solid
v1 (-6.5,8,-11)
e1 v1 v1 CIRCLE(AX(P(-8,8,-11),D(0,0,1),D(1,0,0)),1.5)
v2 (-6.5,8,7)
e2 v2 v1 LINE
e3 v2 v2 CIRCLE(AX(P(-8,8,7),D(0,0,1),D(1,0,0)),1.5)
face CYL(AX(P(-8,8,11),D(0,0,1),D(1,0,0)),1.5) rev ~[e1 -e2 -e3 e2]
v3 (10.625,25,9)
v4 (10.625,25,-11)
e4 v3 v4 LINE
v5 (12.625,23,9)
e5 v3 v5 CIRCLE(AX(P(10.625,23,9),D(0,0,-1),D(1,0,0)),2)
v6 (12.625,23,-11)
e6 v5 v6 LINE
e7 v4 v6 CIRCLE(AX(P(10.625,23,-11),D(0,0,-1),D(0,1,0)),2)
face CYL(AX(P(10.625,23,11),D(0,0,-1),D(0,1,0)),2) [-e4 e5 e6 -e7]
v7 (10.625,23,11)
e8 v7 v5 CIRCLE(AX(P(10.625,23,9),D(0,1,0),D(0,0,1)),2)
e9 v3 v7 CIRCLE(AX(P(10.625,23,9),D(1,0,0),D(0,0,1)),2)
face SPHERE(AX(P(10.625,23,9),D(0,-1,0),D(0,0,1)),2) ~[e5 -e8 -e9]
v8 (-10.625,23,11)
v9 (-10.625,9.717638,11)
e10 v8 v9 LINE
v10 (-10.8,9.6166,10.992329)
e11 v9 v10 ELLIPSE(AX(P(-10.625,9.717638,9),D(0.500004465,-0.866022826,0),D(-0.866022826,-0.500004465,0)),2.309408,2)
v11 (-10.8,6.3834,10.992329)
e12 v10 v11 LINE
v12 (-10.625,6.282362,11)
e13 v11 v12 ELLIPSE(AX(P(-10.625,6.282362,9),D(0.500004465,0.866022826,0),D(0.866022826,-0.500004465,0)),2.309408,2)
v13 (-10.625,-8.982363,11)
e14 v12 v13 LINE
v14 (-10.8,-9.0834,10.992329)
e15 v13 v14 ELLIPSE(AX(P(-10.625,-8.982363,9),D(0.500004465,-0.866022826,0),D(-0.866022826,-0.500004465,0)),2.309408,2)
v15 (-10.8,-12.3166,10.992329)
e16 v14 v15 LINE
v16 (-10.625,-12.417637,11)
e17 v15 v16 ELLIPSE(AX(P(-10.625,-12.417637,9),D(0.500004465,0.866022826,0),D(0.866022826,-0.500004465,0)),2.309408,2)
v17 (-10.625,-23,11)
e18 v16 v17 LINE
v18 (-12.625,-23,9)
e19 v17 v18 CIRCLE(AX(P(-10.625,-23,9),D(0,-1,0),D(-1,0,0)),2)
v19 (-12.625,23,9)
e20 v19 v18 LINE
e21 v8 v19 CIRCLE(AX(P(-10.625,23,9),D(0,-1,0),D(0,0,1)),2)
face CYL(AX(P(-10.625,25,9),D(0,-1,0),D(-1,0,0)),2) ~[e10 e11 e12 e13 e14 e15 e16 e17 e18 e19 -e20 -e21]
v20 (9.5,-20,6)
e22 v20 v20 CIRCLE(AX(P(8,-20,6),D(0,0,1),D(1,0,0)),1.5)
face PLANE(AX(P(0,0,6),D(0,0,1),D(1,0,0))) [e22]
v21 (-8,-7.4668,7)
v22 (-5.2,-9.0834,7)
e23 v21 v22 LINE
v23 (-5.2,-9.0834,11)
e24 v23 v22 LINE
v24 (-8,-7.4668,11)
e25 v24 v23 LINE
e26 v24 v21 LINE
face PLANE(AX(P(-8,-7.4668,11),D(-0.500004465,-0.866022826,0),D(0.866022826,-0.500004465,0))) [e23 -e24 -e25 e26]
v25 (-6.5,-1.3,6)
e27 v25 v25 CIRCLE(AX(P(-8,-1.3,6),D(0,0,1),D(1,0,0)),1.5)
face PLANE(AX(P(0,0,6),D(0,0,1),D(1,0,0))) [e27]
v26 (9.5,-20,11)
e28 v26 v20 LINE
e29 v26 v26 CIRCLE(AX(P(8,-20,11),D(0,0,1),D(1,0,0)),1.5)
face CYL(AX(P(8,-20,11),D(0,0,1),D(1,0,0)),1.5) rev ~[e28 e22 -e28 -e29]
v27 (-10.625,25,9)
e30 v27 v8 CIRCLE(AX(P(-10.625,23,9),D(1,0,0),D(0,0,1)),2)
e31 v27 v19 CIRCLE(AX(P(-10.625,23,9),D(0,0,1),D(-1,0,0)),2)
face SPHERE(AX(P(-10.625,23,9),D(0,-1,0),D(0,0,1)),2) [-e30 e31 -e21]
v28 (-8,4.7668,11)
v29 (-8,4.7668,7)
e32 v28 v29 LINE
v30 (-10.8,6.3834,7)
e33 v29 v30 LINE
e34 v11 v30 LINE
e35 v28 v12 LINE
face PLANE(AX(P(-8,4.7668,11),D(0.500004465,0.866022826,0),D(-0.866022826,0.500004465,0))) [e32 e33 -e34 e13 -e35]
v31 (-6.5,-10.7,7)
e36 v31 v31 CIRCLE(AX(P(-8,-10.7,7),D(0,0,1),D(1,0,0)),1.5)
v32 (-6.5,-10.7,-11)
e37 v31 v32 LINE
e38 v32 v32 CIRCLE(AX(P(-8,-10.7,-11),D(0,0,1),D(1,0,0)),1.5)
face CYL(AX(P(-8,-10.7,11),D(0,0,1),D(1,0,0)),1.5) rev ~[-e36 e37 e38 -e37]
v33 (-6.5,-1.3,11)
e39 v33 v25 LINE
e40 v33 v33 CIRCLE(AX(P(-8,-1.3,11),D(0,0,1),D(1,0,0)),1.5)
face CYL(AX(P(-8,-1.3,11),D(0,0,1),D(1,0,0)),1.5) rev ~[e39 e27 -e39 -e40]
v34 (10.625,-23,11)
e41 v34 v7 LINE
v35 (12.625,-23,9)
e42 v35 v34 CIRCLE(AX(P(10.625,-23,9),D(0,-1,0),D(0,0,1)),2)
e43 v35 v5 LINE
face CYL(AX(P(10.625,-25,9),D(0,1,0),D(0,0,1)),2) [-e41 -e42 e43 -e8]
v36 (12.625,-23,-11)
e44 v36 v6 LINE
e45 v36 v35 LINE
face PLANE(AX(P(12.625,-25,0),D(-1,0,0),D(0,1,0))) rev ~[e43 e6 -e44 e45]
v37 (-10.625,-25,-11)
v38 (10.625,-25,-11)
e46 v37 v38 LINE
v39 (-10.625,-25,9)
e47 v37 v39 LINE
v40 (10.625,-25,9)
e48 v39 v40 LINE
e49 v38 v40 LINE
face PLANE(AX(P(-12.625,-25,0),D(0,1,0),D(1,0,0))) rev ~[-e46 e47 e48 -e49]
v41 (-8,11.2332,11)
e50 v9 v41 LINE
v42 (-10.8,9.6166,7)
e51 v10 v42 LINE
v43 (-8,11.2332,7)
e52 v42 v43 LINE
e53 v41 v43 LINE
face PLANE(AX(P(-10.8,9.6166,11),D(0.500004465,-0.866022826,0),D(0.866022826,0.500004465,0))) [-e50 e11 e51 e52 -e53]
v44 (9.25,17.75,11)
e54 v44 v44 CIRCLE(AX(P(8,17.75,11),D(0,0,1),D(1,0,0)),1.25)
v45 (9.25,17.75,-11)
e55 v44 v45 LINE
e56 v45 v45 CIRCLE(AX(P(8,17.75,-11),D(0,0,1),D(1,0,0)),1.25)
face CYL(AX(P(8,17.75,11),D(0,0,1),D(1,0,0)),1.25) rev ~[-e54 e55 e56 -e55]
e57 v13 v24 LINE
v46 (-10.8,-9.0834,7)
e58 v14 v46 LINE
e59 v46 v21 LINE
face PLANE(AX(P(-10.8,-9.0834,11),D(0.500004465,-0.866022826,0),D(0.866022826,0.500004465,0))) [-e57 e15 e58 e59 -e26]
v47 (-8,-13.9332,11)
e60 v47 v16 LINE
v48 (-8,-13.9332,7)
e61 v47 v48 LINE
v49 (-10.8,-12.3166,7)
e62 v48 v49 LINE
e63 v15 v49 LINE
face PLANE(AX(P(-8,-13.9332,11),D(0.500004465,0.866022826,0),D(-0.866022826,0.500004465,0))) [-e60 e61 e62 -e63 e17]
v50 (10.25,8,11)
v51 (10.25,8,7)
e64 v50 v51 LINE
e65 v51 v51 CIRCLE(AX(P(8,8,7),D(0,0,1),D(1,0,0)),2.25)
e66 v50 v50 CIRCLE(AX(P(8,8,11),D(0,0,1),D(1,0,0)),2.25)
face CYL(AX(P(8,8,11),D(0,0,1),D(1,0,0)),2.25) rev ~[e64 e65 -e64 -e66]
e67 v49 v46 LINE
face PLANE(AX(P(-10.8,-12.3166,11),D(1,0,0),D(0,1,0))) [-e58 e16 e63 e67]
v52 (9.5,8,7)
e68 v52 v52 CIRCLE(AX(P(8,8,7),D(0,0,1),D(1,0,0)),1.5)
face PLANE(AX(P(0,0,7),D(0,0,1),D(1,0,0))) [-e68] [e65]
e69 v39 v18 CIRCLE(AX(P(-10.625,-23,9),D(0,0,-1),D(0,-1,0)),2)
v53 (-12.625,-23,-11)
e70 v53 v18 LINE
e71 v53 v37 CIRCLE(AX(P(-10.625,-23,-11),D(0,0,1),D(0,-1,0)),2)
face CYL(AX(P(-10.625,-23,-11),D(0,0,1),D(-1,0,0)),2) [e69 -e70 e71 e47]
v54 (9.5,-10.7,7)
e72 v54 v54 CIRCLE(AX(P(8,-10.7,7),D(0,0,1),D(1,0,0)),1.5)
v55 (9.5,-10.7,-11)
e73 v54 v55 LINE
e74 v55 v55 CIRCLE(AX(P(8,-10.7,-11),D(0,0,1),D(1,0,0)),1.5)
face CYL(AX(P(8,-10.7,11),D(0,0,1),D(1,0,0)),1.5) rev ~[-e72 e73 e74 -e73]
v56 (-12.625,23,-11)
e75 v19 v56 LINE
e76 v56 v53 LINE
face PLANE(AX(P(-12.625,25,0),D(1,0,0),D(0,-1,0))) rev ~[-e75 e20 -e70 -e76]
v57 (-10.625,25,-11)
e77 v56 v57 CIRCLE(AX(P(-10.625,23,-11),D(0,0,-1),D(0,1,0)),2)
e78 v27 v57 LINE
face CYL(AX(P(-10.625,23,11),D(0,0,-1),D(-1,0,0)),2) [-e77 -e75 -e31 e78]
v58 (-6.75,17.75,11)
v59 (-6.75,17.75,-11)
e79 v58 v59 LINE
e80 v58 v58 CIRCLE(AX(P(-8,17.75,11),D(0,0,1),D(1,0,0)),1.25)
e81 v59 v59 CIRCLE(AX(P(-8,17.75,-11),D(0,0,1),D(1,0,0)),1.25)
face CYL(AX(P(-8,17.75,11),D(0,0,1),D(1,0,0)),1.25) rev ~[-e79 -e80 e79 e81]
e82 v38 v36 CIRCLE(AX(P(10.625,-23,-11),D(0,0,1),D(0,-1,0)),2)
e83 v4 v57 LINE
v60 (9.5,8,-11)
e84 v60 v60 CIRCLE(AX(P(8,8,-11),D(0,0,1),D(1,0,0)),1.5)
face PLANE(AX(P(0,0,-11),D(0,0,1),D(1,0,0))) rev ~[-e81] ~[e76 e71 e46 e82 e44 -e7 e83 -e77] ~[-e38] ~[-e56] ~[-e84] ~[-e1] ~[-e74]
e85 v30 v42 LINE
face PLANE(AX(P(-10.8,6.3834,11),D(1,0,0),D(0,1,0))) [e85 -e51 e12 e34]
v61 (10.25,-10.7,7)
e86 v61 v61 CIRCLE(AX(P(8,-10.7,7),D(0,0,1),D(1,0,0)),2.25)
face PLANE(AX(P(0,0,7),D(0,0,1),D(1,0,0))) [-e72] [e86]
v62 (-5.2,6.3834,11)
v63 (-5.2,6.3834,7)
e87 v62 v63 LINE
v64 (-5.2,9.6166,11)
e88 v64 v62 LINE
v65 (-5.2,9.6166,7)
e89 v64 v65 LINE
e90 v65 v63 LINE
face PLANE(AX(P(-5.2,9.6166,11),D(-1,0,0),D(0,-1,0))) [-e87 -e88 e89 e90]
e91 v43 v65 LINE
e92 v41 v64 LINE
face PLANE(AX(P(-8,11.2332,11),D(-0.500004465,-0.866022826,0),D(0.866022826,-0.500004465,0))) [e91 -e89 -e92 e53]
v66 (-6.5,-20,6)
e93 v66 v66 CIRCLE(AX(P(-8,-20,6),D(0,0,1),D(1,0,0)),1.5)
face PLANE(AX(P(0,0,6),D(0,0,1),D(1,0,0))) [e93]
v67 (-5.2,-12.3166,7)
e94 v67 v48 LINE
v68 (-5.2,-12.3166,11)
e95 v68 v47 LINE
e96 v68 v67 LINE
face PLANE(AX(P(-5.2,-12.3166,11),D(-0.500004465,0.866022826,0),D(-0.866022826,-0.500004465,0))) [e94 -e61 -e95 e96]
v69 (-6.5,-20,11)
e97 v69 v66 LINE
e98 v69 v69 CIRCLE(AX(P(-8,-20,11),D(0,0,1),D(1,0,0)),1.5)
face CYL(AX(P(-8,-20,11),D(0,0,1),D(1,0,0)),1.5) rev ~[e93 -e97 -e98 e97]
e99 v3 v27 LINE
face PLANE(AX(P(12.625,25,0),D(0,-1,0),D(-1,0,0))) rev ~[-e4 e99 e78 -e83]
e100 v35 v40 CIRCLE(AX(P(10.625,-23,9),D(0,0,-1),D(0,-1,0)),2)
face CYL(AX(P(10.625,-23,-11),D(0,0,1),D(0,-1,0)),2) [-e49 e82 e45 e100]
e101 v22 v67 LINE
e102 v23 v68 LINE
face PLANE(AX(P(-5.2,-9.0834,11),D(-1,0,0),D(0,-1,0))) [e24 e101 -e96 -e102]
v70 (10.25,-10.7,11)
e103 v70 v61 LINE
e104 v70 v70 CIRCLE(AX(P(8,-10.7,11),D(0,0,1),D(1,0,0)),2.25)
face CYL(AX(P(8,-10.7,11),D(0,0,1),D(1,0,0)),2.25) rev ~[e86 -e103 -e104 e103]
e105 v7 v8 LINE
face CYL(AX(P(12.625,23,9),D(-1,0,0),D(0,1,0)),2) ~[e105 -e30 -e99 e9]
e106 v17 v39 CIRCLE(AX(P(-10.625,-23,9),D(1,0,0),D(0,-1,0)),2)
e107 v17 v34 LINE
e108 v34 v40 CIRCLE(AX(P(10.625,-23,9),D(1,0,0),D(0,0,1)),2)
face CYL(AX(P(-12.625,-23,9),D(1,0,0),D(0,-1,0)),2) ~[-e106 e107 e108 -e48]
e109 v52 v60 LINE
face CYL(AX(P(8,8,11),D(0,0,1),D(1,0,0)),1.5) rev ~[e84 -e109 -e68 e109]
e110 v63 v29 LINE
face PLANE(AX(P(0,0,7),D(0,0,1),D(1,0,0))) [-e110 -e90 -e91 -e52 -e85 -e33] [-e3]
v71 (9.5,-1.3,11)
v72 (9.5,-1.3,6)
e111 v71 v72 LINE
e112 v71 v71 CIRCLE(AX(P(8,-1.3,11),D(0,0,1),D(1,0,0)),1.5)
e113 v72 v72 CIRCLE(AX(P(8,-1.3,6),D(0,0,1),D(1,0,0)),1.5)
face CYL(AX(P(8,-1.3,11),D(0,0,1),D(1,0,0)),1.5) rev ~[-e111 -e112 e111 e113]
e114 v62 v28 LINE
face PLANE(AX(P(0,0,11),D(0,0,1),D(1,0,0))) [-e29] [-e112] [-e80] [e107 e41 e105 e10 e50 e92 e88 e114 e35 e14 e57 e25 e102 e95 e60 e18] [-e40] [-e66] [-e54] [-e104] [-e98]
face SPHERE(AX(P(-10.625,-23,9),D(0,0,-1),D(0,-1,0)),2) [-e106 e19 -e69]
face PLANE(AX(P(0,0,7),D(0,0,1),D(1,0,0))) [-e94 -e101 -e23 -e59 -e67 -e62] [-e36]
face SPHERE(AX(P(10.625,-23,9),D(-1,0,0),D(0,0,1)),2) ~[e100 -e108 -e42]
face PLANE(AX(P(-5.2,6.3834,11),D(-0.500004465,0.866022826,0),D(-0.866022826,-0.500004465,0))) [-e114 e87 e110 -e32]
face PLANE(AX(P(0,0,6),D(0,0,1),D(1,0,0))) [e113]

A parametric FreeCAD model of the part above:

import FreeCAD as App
import Part
import Sketcher
from FreeCAD import Vector
Q = App.Units.Quantity


def edges_at(feature, points):
    """Names of the edges that pass closest to the given points."""
    edges = feature.Shape.Edges
    near = lambda p: min(range(len(edges)), key=lambda i: edges[i].distToShape(Part.Vertex(*p))[0])
    return sorted({f"Edge{near(p) + 1}" for p in points})

doc = App.newDocument("Part")
body = doc.addObject("PartDesign::Body", "Body")

# Sketch on XY plane
sketch1 = body.newObject("Sketcher::SketchObject", "Sketch")
sketch1.AttachmentSupport = (doc.getObject("XY_Plane"), [""])
sketch1.MapMode = "FlatFace"
sketch1.addGeometry([
    Part.LineSegment(Vector(-13, 25, 0), Vector(-13, -25, 0)),
    Part.LineSegment(Vector(-13, -25, 0), Vector(13, -25, 0)),
    Part.LineSegment(Vector(13, -25, 0), Vector(13, 25, 0)),
    Part.LineSegment(Vector(13, 25, 0), Vector(-13, 25, 0)),
], False)
sketch1.addConstraint([
    Sketcher.Constraint("Coincident", 0, 2, 1, 1),
    Sketcher.Constraint("Coincident", 1, 2, 2, 1),
    Sketcher.Constraint("Coincident", 2, 2, 3, 1),
    Sketcher.Constraint("Coincident", 3, 2, 0, 1),
    Sketcher.Constraint("Vertical", 0),
    Sketcher.Constraint("Horizontal", 1),
    Sketcher.Constraint("Vertical", 2),
    Sketcher.Constraint("Horizontal", 3),
    Sketcher.Constraint("Symmetric", 0, 2, 2, 2, -1, 1),
    Sketcher.Constraint("DistanceY", 0, 2, 0, 1, 50.0),
    Sketcher.Constraint("DistanceX", 1, 1, 1, 2, 25.25),
])
pad1 = body.newObject("PartDesign::Pad", "Pad")
pad1.Profile = sketch1
pad1.Length = 22
pad1.Midplane = True
doc.recompute()

fillet = body.newObject("PartDesign::Fillet", "Fillet")
fillet.Base = (pad1, edges_at(pad1, [
    (-12.625, -25, 0),
    (0, -25, 11),
    (-12.625, 0, 11),
    (12.625, 0, 11),
    (12.625, -25, 0),
    (0, 25, 11),
    (12.625, 25, 0),
    (-12.625, 25, 0),
]))
fillet.Radius = 2

# Sketch on XY plane
sketch2 = body.newObject("Sketcher::SketchObject", "Sketch001")
sketch2.AttachmentSupport = (doc.getObject("XY_Plane"), [""])
sketch2.MapMode = "FlatFace"
sketch2.AttachmentOffset = App.Placement(Vector(0, 0, 11), App.Rotation())
sketch2.addGeometry([
    Part.Circle(Vector(-8, 17.8, 0), Vector(0, 0, 1), 1.2),
    Part.Circle(Vector(8, 17.8, 0), Vector(0, 0, 1), 1.2),
], False)
sketch2.addConstraint([
    Sketcher.Constraint("Equal", 0, 1),
    Sketcher.Constraint("Symmetric", 0, 3, 1, 3, -2),
    Sketcher.Constraint("Diameter", 0, 2.5),
    Sketcher.Constraint("DistanceX", 0, 3, -1, 1, 8.0),
    Sketcher.Constraint("DistanceY", -1, 1, 0, 3, 17.75),
])
pocket1 = body.newObject("PartDesign::Pocket", "Pocket")
pocket1.Profile = sketch2
pocket1.Length = 22

# Sketch on XY plane
sketch3 = body.newObject("Sketcher::SketchObject", "Sketch002")
sketch3.AttachmentSupport = (doc.getObject("XY_Plane"), [""])
sketch3.MapMode = "FlatFace"
sketch3.AttachmentOffset = App.Placement(Vector(0, 0, 11), App.Rotation())
sketch3.addGeometry([
    Part.Circle(Vector(8, 8, 0), Vector(0, 0, 1), 1.5),
    Part.Circle(Vector(-8, 8, 0), Vector(0, 0, 1), 1.5),
], False)
sketch3.addConstraint([
    Sketcher.Constraint("Equal", 0, 1),
    Sketcher.Constraint("Symmetric", 0, 3, 1, 3, -2),
    Sketcher.Constraint("Diameter", 0, 3.0),
    Sketcher.Constraint("DistanceX", 1, 3, 0, 3, 16.0),
    Sketcher.Constraint("DistanceY", -1, 1, 0, 3, 8.0),
])
pocket2 = body.newObject("PartDesign::Pocket", "Pocket001")
pocket2.Profile = sketch3
pocket2.Length = 22

# Sketch on XY plane
sketch4 = body.newObject("Sketcher::SketchObject", "Sketch003")
sketch4.AttachmentSupport = (doc.getObject("XY_Plane"), [""])
sketch4.MapMode = "FlatFace"
sketch4.AttachmentOffset = App.Placement(Vector(0, 0, 11), App.Rotation())
sketch4.addGeometry([
    Part.Circle(Vector(8, 8, 0), Vector(0, 0, 1), 2.2),  # 0
    Part.Circle(Vector(8, 8, 0), Vector(0, 0, 1), 1.5),  # 1
    Part.LineSegment(Vector(-5.2, 9.6, 0), Vector(-8, 11.2, 0)),  # 2
    Part.LineSegment(Vector(-8, 11.2, 0), Vector(-10.8, 9.6, 0)),  # 3
    Part.LineSegment(Vector(-10.8, 9.6, 0), Vector(-10.8, 6.4, 0)),  # 4
    Part.LineSegment(Vector(-10.8, 6.4, 0), Vector(-8, 4.8, 0)),  # 5
    Part.LineSegment(Vector(-8, 4.8, 0), Vector(-5.2, 6.4, 0)),  # 6
    Part.LineSegment(Vector(-5.2, 6.4, 0), Vector(-5.2, 9.6, 0)),  # 7
    Part.Circle(Vector(-8, 8, 0), Vector(0, 0, 1), 1.5),  # 8
], False)
sketch4.addConstraint([
    Sketcher.Constraint("Coincident", 2, 2, 3, 1),
    Sketcher.Constraint("Coincident", 3, 2, 4, 1),
    Sketcher.Constraint("Coincident", 4, 2, 5, 1),
    Sketcher.Constraint("Coincident", 5, 2, 6, 1),
    Sketcher.Constraint("Coincident", 6, 2, 7, 1),
    Sketcher.Constraint("Coincident", 7, 2, 2, 1),
    Sketcher.Constraint("Vertical", 4),
    Sketcher.Constraint("Vertical", 7),
    Sketcher.Constraint("Coincident", 1, 3, 0, 3),
    Sketcher.Constraint("Equal", 1, 8),
    Sketcher.Constraint("Symmetric", 0, 3, 8, 3, -2),
    Sketcher.Constraint("Parallel", 2, 5),
    Sketcher.Constraint("Parallel", 3, 6),
    Sketcher.Constraint("Horizontal", 4, 2, 6, 2),
    Sketcher.Constraint("Horizontal", 3, 2, 7, 2),
    Sketcher.Constraint("Vertical", 8, 3, 2, 2),
    Sketcher.Constraint("Vertical", 2, 2, 5, 2),
    Sketcher.Constraint("Diameter", 0, 4.5),
    Sketcher.Constraint("Diameter", 1, 3.0),
    Sketcher.Constraint("DistanceX", 4, 2, 6, 2, 5.6),
    Sketcher.Constraint("Angle", 2, Q("149.9997 deg")),
    Sketcher.Constraint("DistanceX", -1, 1, 0, 3, 8.0),
    Sketcher.Constraint("DistanceY", -1, 1, 0, 3, 8.0),
    Sketcher.Constraint("DistanceY", 4, 2, 4, 1, 3.2332),
    Sketcher.Constraint("DistanceY", -1, 1, 2, 2, 11.2332),
])
pocket3 = body.newObject("PartDesign::Pocket", "Pocket002")
pocket3.Profile = sketch4
pocket3.Length = 4

# Sketch on XY plane
sketch5 = body.newObject("Sketcher::SketchObject", "Sketch004")
sketch5.AttachmentSupport = (doc.getObject("XY_Plane"), [""])
sketch5.MapMode = "FlatFace"
sketch5.AttachmentOffset = App.Placement(Vector(0, 0, 11), App.Rotation())
sketch5.addGeometry([
    Part.Circle(Vector(-8, -1.3, 0), Vector(0, 0, 1), 1.5),
    Part.Circle(Vector(8, -1.3, 0), Vector(0, 0, 1), 1.5),
    Part.Circle(Vector(-8, -20, 0), Vector(0, 0, 1), 1.5),
    Part.Circle(Vector(8, -20, 0), Vector(0, 0, 1), 1.5),
], False)
sketch5.addConstraint([
    Sketcher.Constraint("Equal", 0, 1),
    Sketcher.Constraint("Equal", 1, 2),
    Sketcher.Constraint("Equal", 2, 3),
    Sketcher.Constraint("Symmetric", 0, 3, 1, 3, -2),
    Sketcher.Constraint("Symmetric", 2, 3, 3, 3, -2),
    Sketcher.Constraint("Vertical", 0, 3, 2, 3),
    Sketcher.Constraint("Diameter", 0, 3.0),
    Sketcher.Constraint("DistanceX", 0, 3, 1, 3, 16.0),
    Sketcher.Constraint("DistanceY", 2, 3, -1, 1, 20.0),
    Sketcher.Constraint("DistanceY", 0, 3, -1, 1, 1.3),
])
pocket4 = body.newObject("PartDesign::Pocket", "Pocket003")
pocket4.Profile = sketch5
pocket4.Length = 5

# Sketch on XY plane
sketch6 = body.newObject("Sketcher::SketchObject", "Sketch005")
sketch6.AttachmentSupport = (doc.getObject("XY_Plane"), [""])
sketch6.MapMode = "FlatFace"
sketch6.AttachmentOffset = App.Placement(Vector(0, 0, 11), App.Rotation())
sketch6.addGeometry([
    Part.Circle(Vector(8, -10.7, 0), Vector(0, 0, 1), 2.2),  # 0
    Part.Circle(Vector(8, -10.7, 0), Vector(0, 0, 1), 1.5),  # 1
    Part.LineSegment(Vector(-8, -7.5, 0), Vector(-10.8, -9.1, 0)),  # 2
    Part.LineSegment(Vector(-10.8, -9.1, 0), Vector(-10.8, -12.3, 0)),  # 3
    Part.LineSegment(Vector(-10.8, -12.3, 0), Vector(-8, -13.9, 0)),  # 4
    Part.LineSegment(Vector(-8, -13.9, 0), Vector(-5.2, -12.3, 0)),  # 5
    Part.LineSegment(Vector(-5.2, -12.3, 0), Vector(-5.2, -9.1, 0)),  # 6
    Part.LineSegment(Vector(-5.2, -9.1, 0), Vector(-8, -7.5, 0)),  # 7
    Part.Circle(Vector(-8, -10.7, 0), Vector(0, 0, 1), 1.5),  # 8
], False)
sketch6.addConstraint([
    Sketcher.Constraint("Coincident", 2, 2, 3, 1),
    Sketcher.Constraint("Coincident", 3, 2, 4, 1),
    Sketcher.Constraint("Coincident", 4, 2, 5, 1),
    Sketcher.Constraint("Coincident", 5, 2, 6, 1),
    Sketcher.Constraint("Coincident", 6, 2, 7, 1),
    Sketcher.Constraint("Coincident", 7, 2, 2, 1),
    Sketcher.Constraint("Vertical", 3),
    Sketcher.Constraint("Vertical", 6),
    Sketcher.Constraint("Coincident", 1, 3, 0, 3),
    Sketcher.Constraint("Equal", 1, 8),
    Sketcher.Constraint("Symmetric", 0, 3, 8, 3, -2),
    Sketcher.Constraint("Parallel", 2, 5),
    Sketcher.Constraint("Parallel", 4, 7),
    Sketcher.Constraint("Horizontal", 3, 2, 5, 2),
    Sketcher.Constraint("Horizontal", 2, 2, 6, 2),
    Sketcher.Constraint("Vertical", 8, 3, 4, 2),
    Sketcher.Constraint("Vertical", 4, 2, 7, 2),
    Sketcher.Constraint("Diameter", 1, 3.0),
    Sketcher.Constraint("Diameter", 0, 4.5),
    Sketcher.Constraint("DistanceX", 3, 2, 5, 2, 5.6),
    Sketcher.Constraint("Angle", 2, Q("-149.9997 deg")),
    Sketcher.Constraint("DistanceX", -1, 1, 0, 3, 8.0),
    Sketcher.Constraint("DistanceY", 0, 3, -1, 1, 10.7),
    Sketcher.Constraint("DistanceY", 3, 2, 3, 1, 3.2332),
    Sketcher.Constraint("DistanceY", 2, 2, -1, 1, 9.0834),
])
pocket5 = body.newObject("PartDesign::Pocket", "Pocket004")
pocket5.Profile = sketch6
pocket5.Length = 4

# Sketch on XY plane
sketch7 = body.newObject("Sketcher::SketchObject", "Sketch006")
sketch7.AttachmentSupport = (doc.getObject("XY_Plane"), [""])
sketch7.MapMode = "FlatFace"
sketch7.AttachmentOffset = App.Placement(Vector(0, 0, 11), App.Rotation())
sketch7.addGeometry([
    Part.Circle(Vector(-8, -10.7, 0), Vector(0, 0, 1), 1.5),
    Part.Circle(Vector(8, -10.7, 0), Vector(0, 0, 1), 1.5),
], False)
sketch7.addConstraint([
    Sketcher.Constraint("Equal", 0, 1),
    Sketcher.Constraint("Symmetric", 0, 3, 1, 3, -2),
    Sketcher.Constraint("Diameter", 0, 3.0),
    Sketcher.Constraint("DistanceX", 0, 3, -1, 1, 8.0),
    Sketcher.Constraint("DistanceY", 0, 3, -1, 1, 10.7),
])
pocket6 = body.newObject("PartDesign::Pocket", "Pocket005")
pocket6.Profile = sketch7
pocket6.Length = 22

doc.recompute()
